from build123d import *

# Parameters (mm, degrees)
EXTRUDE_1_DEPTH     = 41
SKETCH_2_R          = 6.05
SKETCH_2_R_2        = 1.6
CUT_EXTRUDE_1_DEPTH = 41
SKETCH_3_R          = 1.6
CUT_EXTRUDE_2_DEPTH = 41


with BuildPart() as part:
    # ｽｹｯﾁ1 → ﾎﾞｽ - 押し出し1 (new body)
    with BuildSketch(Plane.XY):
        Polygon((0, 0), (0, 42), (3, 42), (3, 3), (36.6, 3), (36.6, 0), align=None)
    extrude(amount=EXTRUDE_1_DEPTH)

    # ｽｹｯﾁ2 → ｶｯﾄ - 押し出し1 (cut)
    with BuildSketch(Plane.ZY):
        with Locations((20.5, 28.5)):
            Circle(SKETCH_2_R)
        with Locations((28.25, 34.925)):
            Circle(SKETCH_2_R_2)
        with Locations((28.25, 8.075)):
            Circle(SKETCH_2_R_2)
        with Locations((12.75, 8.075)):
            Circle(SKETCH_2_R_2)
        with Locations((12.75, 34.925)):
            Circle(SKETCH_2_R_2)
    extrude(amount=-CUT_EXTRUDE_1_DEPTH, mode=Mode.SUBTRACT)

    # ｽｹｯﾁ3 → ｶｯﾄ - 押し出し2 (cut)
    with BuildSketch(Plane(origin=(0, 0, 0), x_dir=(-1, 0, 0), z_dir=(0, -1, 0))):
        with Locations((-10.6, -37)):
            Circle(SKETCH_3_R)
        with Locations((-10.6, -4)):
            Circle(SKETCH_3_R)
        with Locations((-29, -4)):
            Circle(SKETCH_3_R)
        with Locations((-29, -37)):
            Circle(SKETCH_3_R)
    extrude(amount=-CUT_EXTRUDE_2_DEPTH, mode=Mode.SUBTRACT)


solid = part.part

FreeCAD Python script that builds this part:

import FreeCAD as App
import Part
import Sketcher
Q = App.Units.Quantity

doc = App.newDocument("Part")
body = doc.addObject("PartDesign::Body", "Body")

# Sketch on XY plane
sketch1 = body.newObject("Sketcher::SketchObject", "Sketch")
sketch1.AttachmentSupport = (doc.getObject("XY_Plane"), [""])
sketch1.MapMode = "FlatFace"
sketch1.addGeometry(Part.LineSegment(App.Vector(0, 42, 0), App.Vector(0, 0, 0)), False)
sketch1.addGeometry(Part.LineSegment(App.Vector(0, 0, 0), App.Vector(36.6, 0, 0)), False)
sketch1.addGeometry(Part.LineSegment(App.Vector(36.6, 0, 0), App.Vector(36.6, 3, 0)), False)
sketch1.addGeometry(Part.LineSegment(App.Vector(36.6, 3, 0), App.Vector(3, 3, 0)), False)
sketch1.addGeometry(Part.LineSegment(App.Vector(3, 3, 0), App.Vector(3, 42, 0)), False)
sketch1.addGeometry(Part.LineSegment(App.Vector(3, 42, 0), App.Vector(0, 42, 0)), False)
sketch1.addConstraint(Sketcher.Constraint("Coincident", 0, 2, 1, 1))
sketch1.addConstraint(Sketcher.Constraint("Coincident", 1, 2, 2, 1))
sketch1.addConstraint(Sketcher.Constraint("Coincident", 2, 2, 3, 1))
sketch1.addConstraint(Sketcher.Constraint("Coincident", 3, 2, 4, 1))
sketch1.addConstraint(Sketcher.Constraint("Coincident", 4, 2, 5, 1))
sketch1.addConstraint(Sketcher.Constraint("Coincident", 5, 2, 0, 1))
sketch1.addConstraint(Sketcher.Constraint("Vertical", 0))
sketch1.addConstraint(Sketcher.Constraint("Horizontal", 1))
sketch1.addConstraint(Sketcher.Constraint("Vertical", 2))
sketch1.addConstraint(Sketcher.Constraint("Horizontal", 3))
sketch1.addConstraint(Sketcher.Constraint("Vertical", 4))
sketch1.addConstraint(Sketcher.Constraint("Horizontal", 5))
sketch1.addConstraint(Sketcher.Constraint("Coincident", 0, 2, -1, 1))
sketch1.addConstraint(Sketcher.Constraint("Equal", 5, 2))
sketch1.addConstraint(Sketcher.Constraint("DistanceX", 5, 2, 5, 1, Q("3 mm")))
sketch1.addConstraint(Sketcher.Constraint("DistanceY", 0, 2, 0, 1, Q("42 mm")))
sketch1.addConstraint(Sketcher.Constraint("DistanceX", 1, 1, 1, 2, Q("36.6 mm")))
pad1 = body.newObject("PartDesign::Pad", "Pad")
pad1.Profile = sketch1
pad1.Length = 41

# Sketch on YZ plane
sketch2 = body.newObject("Sketcher::SketchObject", "Sketch001")
sketch2.AttachmentSupport = (doc.getObject("YZ_Plane"), [""])
sketch2.MapMode = "FlatFace"
sketch2.addGeometry(Part.Circle(App.Vector(28.5, 20.5, 0), App.Vector(0, 0, 1), 6), False)
sketch2.addGeometry(Part.Circle(App.Vector(34.9, 28.2, 0), App.Vector(0, 0, 1), 1.6), False)
sketch2.addGeometry(Part.Circle(App.Vector(8.1, 28.2, 0), App.Vector(0, 0, 1), 1.6), False)
sketch2.addGeometry(Part.Circle(App.Vector(8.1, 12.8, 0), App.Vector(0, 0, 1), 1.6), False)
sketch2.addGeometry(Part.Circle(App.Vector(34.9, 12.8, 0), App.Vector(0, 0, 1), 1.6), False)
sketch2.addConstraint(Sketcher.Constraint("Equal", 1, 2))
sketch2.addConstraint(Sketcher.Constraint("Equal", 2, 3))
sketch2.addConstraint(Sketcher.Constraint("Equal", 3, 4))
sketch2.addConstraint(Sketcher.Constraint("Horizontal", 1, 3, 2, 3))
sketch2.addConstraint(Sketcher.Constraint("Horizontal", 3, 3, 4, 3))
sketch2.addConstraint(Sketcher.Constraint("Vertical", 2, 3, 3, 3))
sketch2.addConstraint(Sketcher.Constraint("Vertical", 1, 3, 4, 3))
sketch2.addConstraint(Sketcher.Constraint("Diameter", 0, Q("12.1 mm")))
sketch2.addConstraint(Sketcher.Constraint("Diameter", 1, Q("3.2 mm")))
sketch2.addConstraint(Sketcher.Constraint("DistanceX", -1, 1, 0, 3, Q("28.5 mm")))
sketch2.addConstraint(Sketcher.Constraint("DistanceY", -1, 1, 0, 3, Q("20.5 mm")))
sketch2.addConstraint(Sketcher.Constraint("DistanceY", 3, 3, 2, 3, Q("15.5 mm")))
sketch2.addConstraint(Sketcher.Constraint("DistanceY", -1, 1, 1, 3, Q("28.25 mm")))
sketch2.addConstraint(Sketcher.Constraint("DistanceX", 2, 3, 1, 3, Q("26.85 mm")))
sketch2.addConstraint(Sketcher.Constraint("DistanceX", -1, 1, 1, 3, Q("34.925 mm")))
pocket1 = body.newObject("PartDesign::Pocket", "Pocket")
pocket1.Profile = sketch2
pocket1.Length = 41
pocket1.Reversed = True

# Sketch on XZ plane
sketch3 = body.newObject("Sketcher::SketchObject", "Sketch002")
sketch3.AttachmentSupport = (doc.getObject("XZ_Plane"), [""])
sketch3.MapMode = "FlatFace"
sketch3.addGeometry(Part.Circle(App.Vector(10.6, 37, 0), App.Vector(0, 0, 1), 1.6), False)
sketch3.addGeometry(Part.Circle(App.Vector(10.6, 4, 0), App.Vector(0, 0, 1), 1.6), False)
sketch3.addGeometry(Part.Circle(App.Vector(29, 4, 0), App.Vector(0, 0, 1), 1.6), False)
sketch3.addGeometry(Part.Circle(App.Vector(29, 37, 0), App.Vector(0, 0, 1), 1.6), False)
sketch3.addConstraint(Sketcher.Constraint("Equal", 0, 1))
sketch3.addConstraint(Sketcher.Constraint("Equal", 1, 2))
sketch3.addConstraint(Sketcher.Constraint("Equal", 2, 3))
sketch3.addConstraint(Sketcher.Constraint("Horizontal", 1, 3, 2, 3))
sketch3.addConstraint(Sketcher.Constraint("Horizontal", 0, 3, 3, 3))
sketch3.addConstraint(Sketcher.Constraint("Vertical", 0, 3, 1, 3))
sketch3.addConstraint(Sketcher.Constraint("Vertical", 2, 3, 3, 3))
sketch3.addConstraint(Sketcher.Constraint("Diameter", 0, Q("3.2 mm")))
sketch3.addConstraint(Sketcher.Constraint("DistanceY", -1, 1, 0, 3, Q("37 mm")))
sketch3.addConstraint(Sketcher.Constraint("DistanceY", -1, 1, 1, 3, Q("4 mm")))
sketch3.addConstraint(Sketcher.Constraint("DistanceX", -1, 1, 2, 3, Q("29 mm")))
sketch3.addConstraint(Sketcher.Constraint("DistanceX", -1, 1, 0, 3, Q("10.6 mm")))
pocket2 = body.newObject("PartDesign::Pocket", "Pocket001")
pocket2.Profile = sketch3
pocket2.Length = 41

doc.recompute()
